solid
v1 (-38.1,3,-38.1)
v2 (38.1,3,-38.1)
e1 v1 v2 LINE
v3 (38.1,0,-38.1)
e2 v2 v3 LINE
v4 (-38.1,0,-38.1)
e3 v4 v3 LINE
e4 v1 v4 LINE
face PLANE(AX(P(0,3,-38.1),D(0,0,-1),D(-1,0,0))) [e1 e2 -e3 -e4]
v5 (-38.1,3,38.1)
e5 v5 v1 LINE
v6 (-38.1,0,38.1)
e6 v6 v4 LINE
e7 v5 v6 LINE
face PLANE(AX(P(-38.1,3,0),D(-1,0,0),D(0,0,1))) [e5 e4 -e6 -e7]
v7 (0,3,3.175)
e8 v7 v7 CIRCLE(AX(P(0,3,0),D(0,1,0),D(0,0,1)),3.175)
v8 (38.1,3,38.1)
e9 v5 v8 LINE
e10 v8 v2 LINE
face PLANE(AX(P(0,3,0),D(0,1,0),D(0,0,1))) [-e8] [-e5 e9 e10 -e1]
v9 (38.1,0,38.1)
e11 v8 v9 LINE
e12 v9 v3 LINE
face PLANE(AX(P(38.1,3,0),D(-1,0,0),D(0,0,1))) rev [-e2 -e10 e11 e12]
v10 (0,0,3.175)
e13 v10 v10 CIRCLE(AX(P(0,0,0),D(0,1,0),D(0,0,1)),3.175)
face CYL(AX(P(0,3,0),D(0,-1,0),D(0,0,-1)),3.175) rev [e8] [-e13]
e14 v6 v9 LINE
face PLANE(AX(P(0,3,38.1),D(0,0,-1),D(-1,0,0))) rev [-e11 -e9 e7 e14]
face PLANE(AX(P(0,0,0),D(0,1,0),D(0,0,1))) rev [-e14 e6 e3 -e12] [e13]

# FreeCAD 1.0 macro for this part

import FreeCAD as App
import Part
import Sketcher
from FreeCAD import Vector
Q = App.Units.Quantity

doc = App.newDocument("Part")
body = doc.addObject("PartDesign::Body", "Body")

sketch1 = body.newObject("Sketcher::SketchObject", "Sketch")
sketch1.AttachmentSupport = (doc.getObject("XZ_Plane"), [""])
sketch1.MapMode = "FlatFace"
sketch1.addGeometry([
    Part.LineSegment(Vector(-38.1, -38.1, 0), Vector(-38.1, 38.1, 0)),
    Part.LineSegment(Vector(-38.1, 38.1, 0), Vector(38.1, 38.1, 0)),
    Part.LineSegment(Vector(38.1, 38.1, 0), Vector(38.1, -38.1, 0)),
    Part.LineSegment(Vector(38.1, -38.1, 0), Vector(-38.1, -38.1, 0)),
    Part.Circle(Vector(0, 0, 0), Vector(0, 0, 1), 3.2),
], False)
sketch1.addConstraint([
    Sketcher.Constraint("Coincident", 0, 2, 1, 1),
    Sketcher.Constraint("Coincident", 1, 2, 2, 1),
    Sketcher.Constraint("Coincident", 2, 2, 3, 1),
    Sketcher.Constraint("Coincident", 3, 2, 0, 1),
    Sketcher.Constraint("Vertical", 0),
    Sketcher.Constraint("Horizontal", 1),
    Sketcher.Constraint("Vertical", 2),
    Sketcher.Constraint("Horizontal", 3),
    Sketcher.Constraint("Coincident", 4, 3, -1, 1),
    Sketcher.Constraint("Symmetric", 0, 2, 2, 2, -1, 1),
    Sketcher.Constraint("Equal", 3, 0),
    Sketcher.Constraint("Diameter", 4, Q("0.25 in")),
    Sketcher.Constraint("DistanceX", 1, 1, 1, 2, Q("3 in")),
])
pad1 = body.newObject("PartDesign::Pad", "Pad")
pad1.Profile = sketch1
pad1.Length = 3
pad1.Reversed = True

doc.recompute()
